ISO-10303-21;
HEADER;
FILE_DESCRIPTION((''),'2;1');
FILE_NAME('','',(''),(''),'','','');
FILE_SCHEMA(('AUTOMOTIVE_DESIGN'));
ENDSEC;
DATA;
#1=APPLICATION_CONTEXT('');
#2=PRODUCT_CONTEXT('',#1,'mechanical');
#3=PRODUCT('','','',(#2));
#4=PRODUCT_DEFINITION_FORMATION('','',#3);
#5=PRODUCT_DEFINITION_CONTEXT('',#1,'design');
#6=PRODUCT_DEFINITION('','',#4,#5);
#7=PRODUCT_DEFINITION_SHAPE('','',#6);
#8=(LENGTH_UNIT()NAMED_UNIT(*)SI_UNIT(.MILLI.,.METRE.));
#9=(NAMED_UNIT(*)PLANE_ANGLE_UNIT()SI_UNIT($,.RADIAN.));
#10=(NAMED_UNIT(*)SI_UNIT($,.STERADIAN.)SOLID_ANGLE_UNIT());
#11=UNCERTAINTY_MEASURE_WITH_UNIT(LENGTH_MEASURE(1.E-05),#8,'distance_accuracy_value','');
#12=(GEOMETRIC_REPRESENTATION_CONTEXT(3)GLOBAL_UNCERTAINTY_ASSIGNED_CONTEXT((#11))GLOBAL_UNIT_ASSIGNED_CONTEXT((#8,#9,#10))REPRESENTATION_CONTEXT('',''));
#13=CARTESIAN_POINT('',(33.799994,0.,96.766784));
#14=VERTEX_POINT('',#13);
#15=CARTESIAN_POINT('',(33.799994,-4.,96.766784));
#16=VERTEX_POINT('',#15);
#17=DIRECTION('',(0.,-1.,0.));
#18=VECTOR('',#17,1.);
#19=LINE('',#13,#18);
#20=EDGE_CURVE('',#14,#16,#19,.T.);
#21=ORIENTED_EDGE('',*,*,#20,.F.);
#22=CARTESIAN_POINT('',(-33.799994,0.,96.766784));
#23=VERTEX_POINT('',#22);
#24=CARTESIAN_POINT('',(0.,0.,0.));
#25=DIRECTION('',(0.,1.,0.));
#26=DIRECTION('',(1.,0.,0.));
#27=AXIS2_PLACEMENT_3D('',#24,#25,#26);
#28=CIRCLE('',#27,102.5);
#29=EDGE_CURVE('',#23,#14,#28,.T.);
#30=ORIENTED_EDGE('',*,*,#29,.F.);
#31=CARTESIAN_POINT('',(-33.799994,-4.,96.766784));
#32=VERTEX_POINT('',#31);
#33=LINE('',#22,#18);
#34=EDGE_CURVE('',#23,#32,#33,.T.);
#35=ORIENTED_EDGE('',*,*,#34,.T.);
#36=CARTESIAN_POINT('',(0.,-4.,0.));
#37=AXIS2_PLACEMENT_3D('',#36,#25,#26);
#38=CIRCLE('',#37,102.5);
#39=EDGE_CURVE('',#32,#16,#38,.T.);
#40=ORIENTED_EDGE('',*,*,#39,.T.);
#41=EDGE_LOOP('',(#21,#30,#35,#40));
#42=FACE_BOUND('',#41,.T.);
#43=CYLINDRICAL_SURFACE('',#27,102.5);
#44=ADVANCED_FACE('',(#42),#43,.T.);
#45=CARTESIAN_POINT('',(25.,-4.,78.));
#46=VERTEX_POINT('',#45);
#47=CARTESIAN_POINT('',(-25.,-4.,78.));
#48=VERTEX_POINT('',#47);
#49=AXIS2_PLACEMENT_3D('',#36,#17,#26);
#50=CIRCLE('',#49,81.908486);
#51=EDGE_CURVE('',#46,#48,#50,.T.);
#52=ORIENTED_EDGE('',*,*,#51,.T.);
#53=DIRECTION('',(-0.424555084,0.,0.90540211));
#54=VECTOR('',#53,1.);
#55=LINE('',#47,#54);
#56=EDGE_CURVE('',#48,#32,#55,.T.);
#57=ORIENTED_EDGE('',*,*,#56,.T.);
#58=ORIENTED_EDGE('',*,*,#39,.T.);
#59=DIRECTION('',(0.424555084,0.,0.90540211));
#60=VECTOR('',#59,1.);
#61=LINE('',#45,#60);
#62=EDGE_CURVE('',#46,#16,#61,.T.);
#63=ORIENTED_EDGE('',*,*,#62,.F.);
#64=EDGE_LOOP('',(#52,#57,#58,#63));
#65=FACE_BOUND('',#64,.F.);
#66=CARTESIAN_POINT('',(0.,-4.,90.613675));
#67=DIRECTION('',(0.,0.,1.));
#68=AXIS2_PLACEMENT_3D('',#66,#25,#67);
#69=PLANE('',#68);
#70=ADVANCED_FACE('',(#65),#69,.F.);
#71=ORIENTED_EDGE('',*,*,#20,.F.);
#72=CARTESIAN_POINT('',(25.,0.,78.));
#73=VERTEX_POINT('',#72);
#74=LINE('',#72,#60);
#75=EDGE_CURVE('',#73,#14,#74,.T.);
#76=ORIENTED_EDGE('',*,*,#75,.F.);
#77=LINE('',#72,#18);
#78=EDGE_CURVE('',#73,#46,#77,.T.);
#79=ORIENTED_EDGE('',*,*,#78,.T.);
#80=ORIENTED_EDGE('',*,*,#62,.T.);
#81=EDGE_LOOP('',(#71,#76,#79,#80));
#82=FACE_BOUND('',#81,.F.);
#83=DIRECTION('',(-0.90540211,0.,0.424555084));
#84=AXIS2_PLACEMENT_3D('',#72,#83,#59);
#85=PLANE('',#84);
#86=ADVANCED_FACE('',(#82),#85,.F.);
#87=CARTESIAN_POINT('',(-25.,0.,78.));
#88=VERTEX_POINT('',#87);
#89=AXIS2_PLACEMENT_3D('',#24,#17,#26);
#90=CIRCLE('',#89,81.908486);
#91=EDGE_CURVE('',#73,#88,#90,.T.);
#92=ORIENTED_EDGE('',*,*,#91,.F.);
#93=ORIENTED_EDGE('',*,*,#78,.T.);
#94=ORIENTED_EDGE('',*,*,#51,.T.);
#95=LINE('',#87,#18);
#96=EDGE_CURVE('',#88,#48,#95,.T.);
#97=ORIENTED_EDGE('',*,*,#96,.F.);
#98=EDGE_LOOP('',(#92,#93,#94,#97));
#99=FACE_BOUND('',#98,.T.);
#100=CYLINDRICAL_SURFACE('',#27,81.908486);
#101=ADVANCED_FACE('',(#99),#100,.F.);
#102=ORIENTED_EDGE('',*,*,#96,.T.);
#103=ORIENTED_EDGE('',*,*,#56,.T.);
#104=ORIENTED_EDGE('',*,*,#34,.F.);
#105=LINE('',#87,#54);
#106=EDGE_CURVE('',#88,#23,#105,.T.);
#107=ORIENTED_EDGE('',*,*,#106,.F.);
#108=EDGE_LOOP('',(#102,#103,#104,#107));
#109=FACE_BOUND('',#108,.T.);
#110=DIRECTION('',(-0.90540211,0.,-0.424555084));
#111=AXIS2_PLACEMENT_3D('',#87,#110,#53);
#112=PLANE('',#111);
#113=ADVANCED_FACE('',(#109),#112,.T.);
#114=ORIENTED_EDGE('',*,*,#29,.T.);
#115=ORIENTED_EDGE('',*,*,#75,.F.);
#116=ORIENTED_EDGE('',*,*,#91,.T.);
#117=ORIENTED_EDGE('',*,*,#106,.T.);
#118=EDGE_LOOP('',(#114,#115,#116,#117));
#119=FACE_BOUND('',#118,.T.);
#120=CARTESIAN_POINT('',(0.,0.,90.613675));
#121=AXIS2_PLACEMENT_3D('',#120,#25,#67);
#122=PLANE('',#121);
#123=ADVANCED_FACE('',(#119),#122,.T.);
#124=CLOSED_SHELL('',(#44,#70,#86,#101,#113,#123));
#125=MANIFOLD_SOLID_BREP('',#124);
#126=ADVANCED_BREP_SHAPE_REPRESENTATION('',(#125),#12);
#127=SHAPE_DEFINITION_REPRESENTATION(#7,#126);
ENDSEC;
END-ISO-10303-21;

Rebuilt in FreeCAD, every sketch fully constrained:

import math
import FreeCAD as App
import Part
import Sketcher

V = App.Vector
Q = App.Units.Quantity

doc = App.newDocument("Part")
params = doc.addObject("Spreadsheet::Sheet", "Params")
for row, (alias, value) in enumerate([
    ("sketch1_radius", "102.5 mm"),
    ("pad1_length", "4 mm"),
], start=1):
    params.set(f"A{row}", alias)
    params.set(f"B{row}", "=" + value)
    params.setAlias(f"B{row}", alias)

body = doc.addObject("PartDesign::Body", "Body")

# Sketch on XZ plane
sketch1 = body.newObject("Sketcher::SketchObject", "Sketch")
sketch1.AttachmentSupport = (doc.getObject("XZ_Plane"), [""])
sketch1.MapMode = "FlatFace"
sketch1.addGeometry(Part.LineSegment(V(-34, 97, 0), V(-25, 78, 0)), False)
sketch1.addGeometry(Part.ArcOfCircle(Part.Circle(V(0, 0, 0), V(0, 0, 1), 82), math.radians(72), math.radians(108)), False)
sketch1.addGeometry(Part.LineSegment(V(25, 78, 0), V(34, 97, 0)), False)
sketch1.addGeometry(Part.ArcOfCircle(Part.Circle(V(0, 0, 0), V(0, 0, 1), 103), math.radians(71), math.radians(109)), False)
sketch1.addConstraint(Sketcher.Constraint("Coincident", 0, 2, 1, 2))
sketch1.addConstraint(Sketcher.Constraint("Coincident", 1, 1, 2, 1))
sketch1.addConstraint(Sketcher.Constraint("Coincident", 2, 2, 3, 1))
sketch1.addConstraint(Sketcher.Constraint("Coincident", 3, 2, 0, 1))
sketch1.addConstraint(Sketcher.Constraint("Coincident", 1, 3, -1, 1))
sketch1.addConstraint(Sketcher.Constraint("Coincident", 3, 3, -1, 1))
sketch1.addConstraint(Sketcher.Constraint("Horizontal", 0, 2, 1, 1))
sketch1.addConstraint(Sketcher.Constraint("Horizontal", 2, 2, 3, 2))
sketch1.addConstraint(Sketcher.Constraint("Radius", 3, Q("102.5 mm")))
sketch1.addConstraint(Sketcher.Constraint("DistanceX", 0, 2, -1, 1, Q("25 mm")))
sketch1.addConstraint(Sketcher.Constraint("DistanceY", -1, 1, 0, 2, Q("78 mm")))
sketch1.addConstraint(Sketcher.Constraint("DistanceX", -1, 1, 2, 2, Q("33.8 mm")))
sketch1.setExpression("Constraints[8]", "Params.sketch1_radius")
pad1 = body.newObject("PartDesign::Pad", "Pad")
pad1.Profile = sketch1
pad1.setExpression("Length", "Params.pad1_length")

doc.recompute()
